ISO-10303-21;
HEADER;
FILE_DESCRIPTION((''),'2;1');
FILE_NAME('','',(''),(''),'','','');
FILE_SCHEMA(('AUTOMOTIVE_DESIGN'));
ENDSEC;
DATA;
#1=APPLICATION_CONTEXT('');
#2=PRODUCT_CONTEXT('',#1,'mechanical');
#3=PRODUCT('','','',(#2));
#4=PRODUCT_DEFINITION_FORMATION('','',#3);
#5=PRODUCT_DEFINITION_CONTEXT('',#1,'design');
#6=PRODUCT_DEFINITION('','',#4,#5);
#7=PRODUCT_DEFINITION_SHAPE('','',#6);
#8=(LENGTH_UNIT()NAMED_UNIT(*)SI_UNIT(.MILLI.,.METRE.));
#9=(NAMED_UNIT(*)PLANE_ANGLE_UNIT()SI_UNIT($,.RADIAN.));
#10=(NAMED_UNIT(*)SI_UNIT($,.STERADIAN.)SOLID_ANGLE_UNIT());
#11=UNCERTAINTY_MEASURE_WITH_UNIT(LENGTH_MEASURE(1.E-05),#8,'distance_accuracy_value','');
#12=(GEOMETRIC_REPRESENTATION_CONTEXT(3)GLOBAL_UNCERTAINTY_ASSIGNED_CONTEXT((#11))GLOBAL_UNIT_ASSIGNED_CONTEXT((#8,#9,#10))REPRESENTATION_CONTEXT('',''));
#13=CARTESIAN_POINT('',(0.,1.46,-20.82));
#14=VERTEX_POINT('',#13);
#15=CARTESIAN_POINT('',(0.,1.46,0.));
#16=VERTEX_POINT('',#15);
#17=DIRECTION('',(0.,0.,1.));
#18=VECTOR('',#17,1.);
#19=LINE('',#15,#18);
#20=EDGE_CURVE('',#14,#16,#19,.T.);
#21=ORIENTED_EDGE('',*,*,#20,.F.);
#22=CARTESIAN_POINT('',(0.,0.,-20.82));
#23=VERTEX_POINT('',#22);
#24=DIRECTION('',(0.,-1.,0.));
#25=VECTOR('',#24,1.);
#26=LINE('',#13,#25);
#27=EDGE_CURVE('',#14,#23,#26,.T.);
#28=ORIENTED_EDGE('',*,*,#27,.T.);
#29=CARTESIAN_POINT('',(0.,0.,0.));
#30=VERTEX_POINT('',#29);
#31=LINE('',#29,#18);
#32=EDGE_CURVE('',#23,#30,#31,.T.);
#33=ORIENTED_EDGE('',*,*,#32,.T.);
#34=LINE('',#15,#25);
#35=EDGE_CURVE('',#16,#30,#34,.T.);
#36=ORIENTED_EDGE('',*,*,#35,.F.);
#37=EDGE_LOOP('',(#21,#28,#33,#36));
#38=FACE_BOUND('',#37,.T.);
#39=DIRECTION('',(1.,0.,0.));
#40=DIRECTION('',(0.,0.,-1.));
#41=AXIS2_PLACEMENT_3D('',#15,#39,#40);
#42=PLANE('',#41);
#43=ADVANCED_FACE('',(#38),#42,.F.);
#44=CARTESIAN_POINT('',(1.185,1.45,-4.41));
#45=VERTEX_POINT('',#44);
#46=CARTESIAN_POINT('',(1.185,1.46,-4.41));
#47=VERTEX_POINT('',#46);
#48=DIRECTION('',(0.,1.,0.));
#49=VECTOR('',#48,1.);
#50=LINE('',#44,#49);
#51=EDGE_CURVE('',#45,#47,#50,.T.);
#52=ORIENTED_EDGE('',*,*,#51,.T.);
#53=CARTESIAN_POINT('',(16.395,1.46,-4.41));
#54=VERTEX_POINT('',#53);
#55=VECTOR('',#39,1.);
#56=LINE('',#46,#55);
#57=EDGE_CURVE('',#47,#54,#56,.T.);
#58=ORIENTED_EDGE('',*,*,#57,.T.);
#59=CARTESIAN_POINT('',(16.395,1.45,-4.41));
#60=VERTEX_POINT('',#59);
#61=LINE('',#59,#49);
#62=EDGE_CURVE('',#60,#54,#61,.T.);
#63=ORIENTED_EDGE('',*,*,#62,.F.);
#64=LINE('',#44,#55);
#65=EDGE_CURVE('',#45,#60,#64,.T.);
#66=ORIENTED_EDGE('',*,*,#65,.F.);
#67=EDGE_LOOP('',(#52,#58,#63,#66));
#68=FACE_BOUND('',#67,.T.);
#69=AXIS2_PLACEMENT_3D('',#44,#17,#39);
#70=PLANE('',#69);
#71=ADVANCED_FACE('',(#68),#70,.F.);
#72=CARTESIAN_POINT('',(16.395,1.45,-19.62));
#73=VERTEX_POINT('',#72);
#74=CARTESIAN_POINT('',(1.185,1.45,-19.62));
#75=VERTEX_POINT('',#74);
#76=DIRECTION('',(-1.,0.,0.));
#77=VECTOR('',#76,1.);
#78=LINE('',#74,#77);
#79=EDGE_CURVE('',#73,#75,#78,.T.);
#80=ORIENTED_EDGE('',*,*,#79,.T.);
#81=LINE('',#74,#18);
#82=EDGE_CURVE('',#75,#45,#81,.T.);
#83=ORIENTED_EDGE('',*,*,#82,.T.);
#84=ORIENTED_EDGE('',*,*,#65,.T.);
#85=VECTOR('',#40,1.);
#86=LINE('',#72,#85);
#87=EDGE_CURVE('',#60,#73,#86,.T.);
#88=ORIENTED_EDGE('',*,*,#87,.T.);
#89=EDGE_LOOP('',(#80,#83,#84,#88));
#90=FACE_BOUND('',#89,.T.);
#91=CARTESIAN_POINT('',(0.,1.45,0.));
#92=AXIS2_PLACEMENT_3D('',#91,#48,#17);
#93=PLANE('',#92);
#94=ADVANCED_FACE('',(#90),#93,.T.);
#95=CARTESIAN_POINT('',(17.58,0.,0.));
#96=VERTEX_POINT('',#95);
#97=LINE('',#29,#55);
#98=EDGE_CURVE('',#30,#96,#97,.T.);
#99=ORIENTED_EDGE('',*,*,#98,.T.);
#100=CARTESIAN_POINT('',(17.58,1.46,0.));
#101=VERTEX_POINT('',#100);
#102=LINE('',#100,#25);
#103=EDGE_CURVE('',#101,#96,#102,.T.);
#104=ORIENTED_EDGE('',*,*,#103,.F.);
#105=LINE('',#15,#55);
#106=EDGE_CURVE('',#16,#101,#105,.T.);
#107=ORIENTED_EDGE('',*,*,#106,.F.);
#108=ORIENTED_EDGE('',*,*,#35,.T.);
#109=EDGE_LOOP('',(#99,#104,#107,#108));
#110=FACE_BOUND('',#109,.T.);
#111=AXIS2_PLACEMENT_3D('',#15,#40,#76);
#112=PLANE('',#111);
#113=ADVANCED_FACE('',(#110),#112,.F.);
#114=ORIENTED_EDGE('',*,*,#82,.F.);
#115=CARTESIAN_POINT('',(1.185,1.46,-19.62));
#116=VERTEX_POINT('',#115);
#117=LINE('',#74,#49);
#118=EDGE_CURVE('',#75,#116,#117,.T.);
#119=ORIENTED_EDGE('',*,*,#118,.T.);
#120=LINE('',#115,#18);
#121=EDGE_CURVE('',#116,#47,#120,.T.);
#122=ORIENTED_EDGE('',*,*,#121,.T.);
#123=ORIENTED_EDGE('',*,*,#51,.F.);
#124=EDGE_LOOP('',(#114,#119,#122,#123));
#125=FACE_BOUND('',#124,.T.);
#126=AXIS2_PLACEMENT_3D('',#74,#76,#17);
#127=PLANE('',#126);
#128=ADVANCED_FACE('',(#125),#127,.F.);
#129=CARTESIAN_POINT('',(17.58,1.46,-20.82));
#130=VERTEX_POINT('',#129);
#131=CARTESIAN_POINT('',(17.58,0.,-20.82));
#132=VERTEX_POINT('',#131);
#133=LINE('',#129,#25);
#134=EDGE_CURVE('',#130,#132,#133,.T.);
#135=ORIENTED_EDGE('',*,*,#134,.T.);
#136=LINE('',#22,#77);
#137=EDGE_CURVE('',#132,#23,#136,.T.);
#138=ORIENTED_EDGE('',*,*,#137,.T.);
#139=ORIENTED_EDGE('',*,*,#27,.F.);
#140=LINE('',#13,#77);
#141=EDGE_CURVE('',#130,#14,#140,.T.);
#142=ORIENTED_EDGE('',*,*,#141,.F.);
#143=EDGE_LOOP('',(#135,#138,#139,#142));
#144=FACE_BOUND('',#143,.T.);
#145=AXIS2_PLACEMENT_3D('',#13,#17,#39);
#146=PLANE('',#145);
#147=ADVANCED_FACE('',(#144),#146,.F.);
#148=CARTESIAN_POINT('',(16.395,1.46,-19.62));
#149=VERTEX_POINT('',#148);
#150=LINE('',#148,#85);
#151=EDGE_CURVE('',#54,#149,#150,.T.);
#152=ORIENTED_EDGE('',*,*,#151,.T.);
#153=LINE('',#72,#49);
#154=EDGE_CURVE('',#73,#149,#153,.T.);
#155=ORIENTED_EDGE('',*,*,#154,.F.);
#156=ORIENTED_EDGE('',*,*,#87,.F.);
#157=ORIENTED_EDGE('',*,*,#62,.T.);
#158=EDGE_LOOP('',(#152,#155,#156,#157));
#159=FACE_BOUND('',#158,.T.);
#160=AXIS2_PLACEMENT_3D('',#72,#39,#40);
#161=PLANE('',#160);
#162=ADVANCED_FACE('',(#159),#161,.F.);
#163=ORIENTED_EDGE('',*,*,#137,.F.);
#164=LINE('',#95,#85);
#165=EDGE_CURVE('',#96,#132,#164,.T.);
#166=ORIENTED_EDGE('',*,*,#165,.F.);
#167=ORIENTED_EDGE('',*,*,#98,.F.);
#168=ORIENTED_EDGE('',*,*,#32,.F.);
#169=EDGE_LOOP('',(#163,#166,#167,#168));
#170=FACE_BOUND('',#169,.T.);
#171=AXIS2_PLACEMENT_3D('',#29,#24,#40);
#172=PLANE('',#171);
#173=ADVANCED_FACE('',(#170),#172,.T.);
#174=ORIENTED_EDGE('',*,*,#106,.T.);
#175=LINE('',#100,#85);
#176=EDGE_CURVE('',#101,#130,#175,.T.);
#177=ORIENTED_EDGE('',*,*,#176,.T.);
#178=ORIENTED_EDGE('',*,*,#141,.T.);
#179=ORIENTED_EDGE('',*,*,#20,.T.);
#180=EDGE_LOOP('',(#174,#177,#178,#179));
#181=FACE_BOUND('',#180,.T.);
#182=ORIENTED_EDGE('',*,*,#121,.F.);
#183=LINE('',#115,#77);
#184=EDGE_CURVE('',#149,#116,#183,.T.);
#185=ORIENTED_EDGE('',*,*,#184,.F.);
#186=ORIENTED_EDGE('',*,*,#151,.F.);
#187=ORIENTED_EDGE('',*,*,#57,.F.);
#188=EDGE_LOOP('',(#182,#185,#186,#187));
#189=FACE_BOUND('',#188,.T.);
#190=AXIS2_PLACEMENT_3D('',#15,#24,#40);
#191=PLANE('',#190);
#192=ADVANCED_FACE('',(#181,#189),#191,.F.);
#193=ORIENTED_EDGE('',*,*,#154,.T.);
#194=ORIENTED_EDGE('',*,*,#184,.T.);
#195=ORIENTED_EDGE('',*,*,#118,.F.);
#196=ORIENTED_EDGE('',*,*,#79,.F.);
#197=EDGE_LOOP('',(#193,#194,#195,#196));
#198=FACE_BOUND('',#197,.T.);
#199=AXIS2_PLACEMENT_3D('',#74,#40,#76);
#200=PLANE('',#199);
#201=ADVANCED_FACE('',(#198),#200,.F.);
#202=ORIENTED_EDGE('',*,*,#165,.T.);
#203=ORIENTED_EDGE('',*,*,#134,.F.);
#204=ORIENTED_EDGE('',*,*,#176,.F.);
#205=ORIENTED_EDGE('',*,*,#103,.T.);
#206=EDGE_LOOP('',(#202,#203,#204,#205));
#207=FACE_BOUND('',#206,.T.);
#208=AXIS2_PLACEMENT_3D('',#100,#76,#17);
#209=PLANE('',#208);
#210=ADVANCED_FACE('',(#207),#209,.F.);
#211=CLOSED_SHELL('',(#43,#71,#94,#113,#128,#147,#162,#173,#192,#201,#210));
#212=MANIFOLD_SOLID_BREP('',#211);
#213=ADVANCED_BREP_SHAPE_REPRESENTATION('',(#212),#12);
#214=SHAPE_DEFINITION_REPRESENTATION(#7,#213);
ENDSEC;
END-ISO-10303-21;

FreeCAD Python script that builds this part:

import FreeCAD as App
import Part
import Sketcher

doc = App.newDocument("Part")
params = doc.addObject("Spreadsheet::Sheet", "Params")
for row, (alias, value) in enumerate([
    ("sketch1_width", "17.58 mm"),
    ("sketch1_height", "20.82 mm"),
    ("pad1_length", "1.46 mm"),
    ("sketch2_width", "15.21 mm"),
    ("pocket1_length", "0.01 mm"),
], start=1):
    params.set(f"A{row}", alias)
    params.set(f"B{row}", "=" + value)
    params.setAlias(f"B{row}", alias)

body = doc.addObject("PartDesign::Body", "Body")

# Sketch on XZ plane
sketch1 = doc.addObject("Sketcher::SketchObject", "Sketch")
body.addObject(sketch1)
sketch1.AttachmentSupport = (doc.XZ_Plane, [""])
sketch1.MapMode = "FlatFace"
sketch1.addGeometry([
    Part.LineSegment(App.Vector(0, -21, 0), App.Vector(0, 0, 0)),
    Part.LineSegment(App.Vector(0, 0, 0), App.Vector(18, 0, 0)),
    Part.LineSegment(App.Vector(18, 0, 0), App.Vector(18, -21, 0)),
    Part.LineSegment(App.Vector(18, -21, 0), App.Vector(0, -21, 0)),
], False)
sketch1.addConstraint([
    Sketcher.Constraint("Coincident", 0, 2, 1, 1),
    Sketcher.Constraint("Coincident", 1, 2, 2, 1),
    Sketcher.Constraint("Coincident", 2, 2, 3, 1),
    Sketcher.Constraint("Coincident", 3, 2, 0, 1),
    Sketcher.Constraint("Vertical", 0),
    Sketcher.Constraint("Horizontal", 1),
    Sketcher.Constraint("Vertical", 2),
    Sketcher.Constraint("Horizontal", 3),
    Sketcher.Constraint("Coincident", 0, 2, -1, 1),
    Sketcher.Constraint("DistanceX", 1, 1, 1, 2, 17.58),
    Sketcher.Constraint("DistanceY", 0, 1, 0, 2, 20.82),
])
sketch1.setExpression("Constraints[9]", "Params.sketch1_width")
sketch1.setExpression("Constraints[10]", "Params.sketch1_height")
pad1 = doc.addObject("PartDesign::Pad", "Pad")
body.addObject(pad1)
pad1.Profile = sketch1
pad1.setExpression("Length", "Params.pad1_length")
pad1.Reversed = True

# Sketch on XZ plane
sketch2 = doc.addObject("Sketcher::SketchObject", "Sketch001")
body.addObject(sketch2)
sketch2.AttachmentSupport = (doc.XZ_Plane, [""])
sketch2.MapMode = "FlatFace"
sketch2.AttachmentOffset = App.Placement(App.Vector(0, 0, -1.46), App.Rotation())
sketch2.addGeometry([
    Part.LineSegment(App.Vector(1, -20, 0), App.Vector(1, -4, 0)),
    Part.LineSegment(App.Vector(1, -4, 0), App.Vector(16, -4, 0)),
    Part.LineSegment(App.Vector(16, -4, 0), App.Vector(16, -20, 0)),
    Part.LineSegment(App.Vector(16, -20, 0), App.Vector(1, -20, 0)),
], False)
sketch2.addConstraint([
    Sketcher.Constraint("Coincident", 0, 2, 1, 1),
    Sketcher.Constraint("Coincident", 1, 2, 2, 1),
    Sketcher.Constraint("Coincident", 2, 2, 3, 1),
    Sketcher.Constraint("Coincident", 3, 2, 0, 1),
    Sketcher.Constraint("Vertical", 0),
    Sketcher.Constraint("Horizontal", 1),
    Sketcher.Constraint("Vertical", 2),
    Sketcher.Constraint("Horizontal", 3),
    Sketcher.Constraint("Equal", 3, 0),
    Sketcher.Constraint("DistanceX", 1, 1, 1, 2, 15.21),
    Sketcher.Constraint("DistanceY", 0, 2, -1, 1, 4.41),
    Sketcher.Constraint("DistanceX", -1, 1, 0, 2, 1.185),
])
sketch2.setExpression("Constraints[9]", "Params.sketch2_width")
pocket1 = doc.addObject("PartDesign::Pocket", "Pocket")
body.addObject(pocket1)
pocket1.Profile = sketch2
pocket1.setExpression("Length", "Params.pocket1_length")
pocket1.Reversed = True

doc.recompute()
